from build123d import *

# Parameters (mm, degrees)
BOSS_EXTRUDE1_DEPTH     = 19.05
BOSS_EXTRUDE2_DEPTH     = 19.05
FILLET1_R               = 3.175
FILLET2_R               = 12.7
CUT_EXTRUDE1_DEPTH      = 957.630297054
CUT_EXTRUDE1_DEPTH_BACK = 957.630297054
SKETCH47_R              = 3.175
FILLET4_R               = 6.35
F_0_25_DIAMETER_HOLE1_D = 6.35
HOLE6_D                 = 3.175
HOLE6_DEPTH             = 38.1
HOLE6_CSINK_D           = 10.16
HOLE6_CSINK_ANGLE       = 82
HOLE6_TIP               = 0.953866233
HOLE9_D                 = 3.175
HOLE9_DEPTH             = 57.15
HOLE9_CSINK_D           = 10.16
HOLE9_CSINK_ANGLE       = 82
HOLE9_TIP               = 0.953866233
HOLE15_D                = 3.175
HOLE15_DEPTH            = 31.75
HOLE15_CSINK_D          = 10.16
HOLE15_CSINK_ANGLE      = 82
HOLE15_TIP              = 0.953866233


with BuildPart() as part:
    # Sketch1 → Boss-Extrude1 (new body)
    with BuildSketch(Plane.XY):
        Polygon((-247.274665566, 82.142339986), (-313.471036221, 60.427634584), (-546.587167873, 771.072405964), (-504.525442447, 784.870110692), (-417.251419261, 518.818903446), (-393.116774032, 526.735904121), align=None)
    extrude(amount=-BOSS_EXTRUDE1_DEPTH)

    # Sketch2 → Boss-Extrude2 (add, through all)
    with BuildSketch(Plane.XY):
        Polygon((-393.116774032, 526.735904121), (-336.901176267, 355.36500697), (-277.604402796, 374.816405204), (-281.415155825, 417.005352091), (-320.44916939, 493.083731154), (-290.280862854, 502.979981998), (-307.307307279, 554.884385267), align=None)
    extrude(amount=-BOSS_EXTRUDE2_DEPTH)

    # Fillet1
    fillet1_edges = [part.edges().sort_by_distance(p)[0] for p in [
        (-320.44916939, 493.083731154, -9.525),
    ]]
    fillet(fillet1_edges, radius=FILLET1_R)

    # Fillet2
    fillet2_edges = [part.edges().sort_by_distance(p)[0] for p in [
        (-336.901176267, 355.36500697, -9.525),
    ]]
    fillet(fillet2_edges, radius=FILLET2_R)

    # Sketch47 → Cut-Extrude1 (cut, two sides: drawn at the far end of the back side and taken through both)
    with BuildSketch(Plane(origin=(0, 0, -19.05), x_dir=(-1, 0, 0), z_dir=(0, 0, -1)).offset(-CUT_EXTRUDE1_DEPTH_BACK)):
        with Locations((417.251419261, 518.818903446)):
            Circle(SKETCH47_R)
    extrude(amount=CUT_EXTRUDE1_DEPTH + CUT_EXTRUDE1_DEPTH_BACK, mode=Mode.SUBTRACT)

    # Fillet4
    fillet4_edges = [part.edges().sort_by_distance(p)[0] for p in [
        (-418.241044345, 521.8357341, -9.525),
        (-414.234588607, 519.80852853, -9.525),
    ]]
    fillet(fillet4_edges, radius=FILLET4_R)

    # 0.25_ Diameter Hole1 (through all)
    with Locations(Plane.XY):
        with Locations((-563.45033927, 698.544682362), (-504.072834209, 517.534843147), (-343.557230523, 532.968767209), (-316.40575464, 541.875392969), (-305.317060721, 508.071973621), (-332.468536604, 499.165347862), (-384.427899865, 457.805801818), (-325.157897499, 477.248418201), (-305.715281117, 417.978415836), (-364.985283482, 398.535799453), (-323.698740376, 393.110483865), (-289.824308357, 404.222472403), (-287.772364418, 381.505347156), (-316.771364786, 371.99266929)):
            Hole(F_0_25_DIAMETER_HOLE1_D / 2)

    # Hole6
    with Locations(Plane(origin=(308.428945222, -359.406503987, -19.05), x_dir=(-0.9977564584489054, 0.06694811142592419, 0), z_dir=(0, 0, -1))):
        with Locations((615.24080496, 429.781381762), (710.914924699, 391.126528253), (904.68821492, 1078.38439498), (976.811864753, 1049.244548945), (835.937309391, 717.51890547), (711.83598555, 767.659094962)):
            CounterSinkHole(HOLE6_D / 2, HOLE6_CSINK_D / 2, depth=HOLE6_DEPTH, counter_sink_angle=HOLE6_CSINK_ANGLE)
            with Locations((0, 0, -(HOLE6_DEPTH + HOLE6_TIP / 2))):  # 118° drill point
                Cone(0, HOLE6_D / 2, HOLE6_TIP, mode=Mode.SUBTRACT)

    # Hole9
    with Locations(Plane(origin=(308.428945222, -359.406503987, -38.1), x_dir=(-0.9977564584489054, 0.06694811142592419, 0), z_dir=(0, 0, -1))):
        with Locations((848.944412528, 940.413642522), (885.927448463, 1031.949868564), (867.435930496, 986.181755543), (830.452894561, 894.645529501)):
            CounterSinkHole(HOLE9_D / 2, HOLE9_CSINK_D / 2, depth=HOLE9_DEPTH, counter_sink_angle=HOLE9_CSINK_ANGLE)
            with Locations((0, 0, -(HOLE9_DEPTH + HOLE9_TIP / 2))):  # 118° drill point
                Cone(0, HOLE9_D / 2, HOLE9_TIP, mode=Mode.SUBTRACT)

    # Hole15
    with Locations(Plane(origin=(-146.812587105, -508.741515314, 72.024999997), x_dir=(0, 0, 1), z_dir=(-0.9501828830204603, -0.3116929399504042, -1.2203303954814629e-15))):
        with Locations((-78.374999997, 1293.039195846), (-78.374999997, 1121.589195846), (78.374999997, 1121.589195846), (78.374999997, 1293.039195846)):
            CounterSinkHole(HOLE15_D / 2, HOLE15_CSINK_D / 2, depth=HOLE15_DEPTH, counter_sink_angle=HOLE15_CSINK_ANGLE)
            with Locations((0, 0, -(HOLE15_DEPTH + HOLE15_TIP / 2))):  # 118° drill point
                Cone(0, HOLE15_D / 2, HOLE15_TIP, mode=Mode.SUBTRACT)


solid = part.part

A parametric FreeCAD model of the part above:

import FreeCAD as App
import Part
import Sketcher
from FreeCAD import Vector
Q = App.Units.Quantity


def edges_at(feature, points):
    """Names of the edges that pass closest to the given points."""
    edges = feature.Shape.Edges
    near = lambda p: min(range(len(edges)), key=lambda i: edges[i].distToShape(Part.Vertex(*p))[0])
    return sorted({f"Edge{near(p) + 1}" for p in points})

doc = App.newDocument("Part")
body = doc.addObject("PartDesign::Body", "Body")

sketch1 = body.newObject("Sketcher::SketchObject", "Sketch")
sketch1.AttachmentSupport = (doc.getObject("XY_Plane"), [""])
sketch1.MapMode = "FlatFace"
sketch1.addGeometry([
    Part.LineSegment(Vector(-313.471036, 60.427635, 0), Vector(-247.274666, 82.14234, 0)),
    Part.LineSegment(Vector(-247.274666, 82.14234, 0), Vector(-393.116774, 526.735904, 0)),
    Part.LineSegment(Vector(-393.116774, 526.735904, 0), Vector(-417.251419, 518.818903, 0)),
    Part.LineSegment(Vector(-417.251419, 518.818903, 0), Vector(-504.525442, 784.870111, 0)),
    Part.LineSegment(Vector(-504.525442, 784.870111, 0), Vector(-546.587168, 771.072406, 0)),
    Part.LineSegment(Vector(-546.587168, 771.072406, 0), Vector(-313.471036, 60.427635, 0)),
], False)
sketch1.addConstraint([
    Sketcher.Constraint("Coincident", 0, 2, 1, 1),
    Sketcher.Constraint("Coincident", 1, 2, 2, 1),
    Sketcher.Constraint("Coincident", 2, 2, 3, 1),
    Sketcher.Constraint("Coincident", 3, 2, 4, 1),
    Sketcher.Constraint("Coincident", 4, 2, 5, 1),
    Sketcher.Constraint("Coincident", 5, 2, 0, 1),
    Sketcher.Constraint("Perpendicular", 0, 1),
    Sketcher.Constraint("Perpendicular", 1, 2),
    Sketcher.Constraint("Perpendicular", 2, 3),
    Sketcher.Constraint("Perpendicular", 3, 4),
    Sketcher.Constraint("Perpendicular", 4, 5),
    Sketcher.Constraint("Distance", 2, Q("1 in")),
    Sketcher.Constraint("Distance", 3, 280.0),
    Sketcher.Constraint("DistanceY", 2, 2, 1, 2, 7.917001),
    Sketcher.Constraint("DistanceY", 1, 2, 4, 2, 244.336502),
    Sketcher.Constraint("Distance", 1, 467.90315),
    Sketcher.Constraint("DistanceY", -1, 1, 0, 2, 82.14234),
    Sketcher.Constraint("DistanceX", 2, 2, -1, 1, 417.251419),
])
pad1 = body.newObject("PartDesign::Pad", "Pad")
pad1.Profile = sketch1
pad1.Length = Q("0.75 in")
pad1.Reversed = True

sketch2 = body.newObject("Sketcher::SketchObject", "Sketch001")
sketch2.AttachmentSupport = (doc.getObject("XY_Plane"), [""])
sketch2.MapMode = "FlatFace"
sketch2.addGeometry([
    Part.LineSegment(Vector(-393.116774, 526.735904, 0), Vector(-336.901176, 355.365007, 0)),
    Part.LineSegment(Vector(-336.901176, 355.365007, 0), Vector(-277.604403, 374.816405, 0)),
    Part.LineSegment(Vector(-277.604403, 374.816405, 0), Vector(-281.415156, 417.005352, 0)),
    Part.LineSegment(Vector(-281.415156, 417.005352, 0), Vector(-320.449169, 493.083731, 0)),
    Part.LineSegment(Vector(-320.449169, 493.083731, 0), Vector(-290.280863, 502.979982, 0)),
    Part.LineSegment(Vector(-290.280863, 502.979982, 0), Vector(-307.307307, 554.884385, 0)),
    Part.LineSegment(Vector(-307.307307, 554.884385, 0), Vector(-393.116774, 526.735904, 0)),
], False)
sketch2.addConstraint([
    Sketcher.Constraint("Coincident", 0, 2, 1, 1),
    Sketcher.Constraint("Coincident", 1, 2, 2, 1),
    Sketcher.Constraint("Coincident", 2, 2, 3, 1),
    Sketcher.Constraint("Coincident", 3, 2, 4, 1),
    Sketcher.Constraint("Coincident", 4, 2, 5, 1),
    Sketcher.Constraint("Coincident", 5, 2, 6, 1),
    Sketcher.Constraint("Coincident", 6, 2, 0, 1),
    Sketcher.Constraint("Perpendicular", 0, 1),
    Sketcher.Constraint("Parallel", 1, 4),
    Sketcher.Constraint("Perpendicular", 4, 5),
    Sketcher.Constraint("Perpendicular", 5, 6),
    Sketcher.Constraint("Distance", 4, Q("1.25 in")),
    Sketcher.Constraint("Distance", 0, 180.355698),
    Sketcher.Constraint("Distance", 5, 54.625698),
    Sketcher.Constraint("DistanceY", 0, 2, 1, 2, 19.451398),
    Sketcher.Constraint("Distance", 6, 90.308369),
    Sketcher.Constraint("DistanceX", 3, 2, -1, 1, 320.449169),
    Sketcher.Constraint("DistanceY", -1, 1, 3, 2, 493.083731),
    Sketcher.Constraint("DistanceY", -1, 1, 4, 2, 502.979982),
    Sketcher.Constraint("DistanceX", 0, 2, 2, 2, 55.48602),
    Sketcher.Constraint("DistanceY", 2, 2, 3, 2, 76.078379),
])
pad2 = body.newObject("PartDesign::Pad", "Pad001")
pad2.Profile = sketch2
pad2.Length = Q("0.75 in")
pad2.Reversed = True
doc.recompute()

fillet = body.newObject("PartDesign::Fillet", "Fillet")
fillet.Base = (pad2, edges_at(pad2, [(-320.449, 493.084, -9.525)]))
fillet.Radius = Q("0.125 in")
doc.recompute()

fillet2 = body.newObject("PartDesign::Fillet", "Fillet001")
fillet2.Base = (fillet, edges_at(fillet, [(-336.901, 355.365, -9.525)]))
fillet2.Radius = Q("0.5 in")

sketch3 = body.newObject("Sketcher::SketchObject", "Sketch002")
sketch3.AttachmentSupport = (doc.getObject("XY_Plane"), [""])
sketch3.MapMode = "FlatFace"
sketch3.AttachmentOffset = App.Placement(Vector(0, 0, -0.75 * 25.4), App.Rotation())
sketch3.addGeometry(Part.Circle(Vector(-417.251419, 518.818903, 0), Vector(0, 0, 1), 3.175), False)
sketch3.addConstraint([
    Sketcher.Constraint("Diameter", 0, Q("0.25 in")),
    Sketcher.Constraint("DistanceX", 0, 3, -1, 1, 417.251419),
    Sketcher.Constraint("DistanceY", -1, 1, 0, 3, 518.818903),
])
pocket1 = body.newObject("PartDesign::Pocket", "Pocket")
pocket1.Profile = sketch3
pocket1.Type = "ThroughAll"
pocket1.Midplane = True
doc.recompute()

fillet3 = body.newObject("PartDesign::Fillet", "Fillet002")
fillet3.Base = (pocket1, edges_at(pocket1, [(-418.241, 521.836, -9.525), (-414.235, 519.809, -9.525)]))
fillet3.Radius = Q("0.25 in")

sketch4 = body.newObject("Sketcher::SketchObject", "Sketch003")
sketch4.AttachmentSupport = (doc.getObject("XY_Plane"), [""])
sketch4.MapMode = "FlatFace"
sketch4.addGeometry([
    Part.Circle(Vector(-563.450339, 698.544682, 0), Vector(0, 0, 1), 3.175),
    Part.Circle(Vector(-504.072834, 517.534843, 0), Vector(0, 0, 1), 3.175),
    Part.Circle(Vector(-343.557231, 532.968767, 0), Vector(0, 0, 1), 3.175),
    Part.Circle(Vector(-316.405755, 541.875393, 0), Vector(0, 0, 1), 3.175),
    Part.Circle(Vector(-305.317061, 508.071974, 0), Vector(0, 0, 1), 3.175),
    Part.Circle(Vector(-332.468537, 499.165348, 0), Vector(0, 0, 1), 3.175),
    Part.Circle(Vector(-384.4279, 457.805802, 0), Vector(0, 0, 1), 3.175),
    Part.Circle(Vector(-325.157897, 477.248418, 0), Vector(0, 0, 1), 3.175),
    Part.Circle(Vector(-305.715281, 417.978416, 0), Vector(0, 0, 1), 3.175),
    Part.Circle(Vector(-364.985283, 398.535799, 0), Vector(0, 0, 1), 3.175),
    Part.Circle(Vector(-323.69874, 393.110484, 0), Vector(0, 0, 1), 3.175),
    Part.Circle(Vector(-289.824308, 404.222472, 0), Vector(0, 0, 1), 3.175),
    Part.Circle(Vector(-287.772364, 381.505347, 0), Vector(0, 0, 1), 3.175),
    Part.Circle(Vector(-316.771365, 371.992669, 0), Vector(0, 0, 1), 3.175),
], False)
sketch4.addConstraint([
    Sketcher.Constraint("Equal", 0, 1),
    Sketcher.Constraint("Equal", 1, 2),
    Sketcher.Constraint("Equal", 2, 3),
    Sketcher.Constraint("Equal", 3, 4),
    Sketcher.Constraint("Equal", 4, 5),
    Sketcher.Constraint("Equal", 5, 6),
    Sketcher.Constraint("Equal", 6, 7),
    Sketcher.Constraint("Equal", 7, 8),
    Sketcher.Constraint("Equal", 8, 9),
    Sketcher.Constraint("Equal", 9, 10),
    Sketcher.Constraint("Equal", 10, 11),
    Sketcher.Constraint("Equal", 11, 12),
    Sketcher.Constraint("Equal", 12, 13),
    Sketcher.Constraint("Diameter", 0, Q("0.25 in")),
    Sketcher.Constraint("DistanceX", 6, 3, 4, 3, Q("3.1146 in")),
    Sketcher.Constraint("DistanceX", 6, 3, -1, 1, 384.4279),
    Sketcher.Constraint("DistanceY", -1, 1, 6, 3, 457.805802),
    Sketcher.Constraint("DistanceY", -1, 1, 9, 3, 398.535799),
    Sketcher.Constraint("DistanceX", 13, 3, 12, 3, 28.999),
    Sketcher.Constraint("DistanceX", 0, 3, -1, 1, 563.450339),
    Sketcher.Constraint("DistanceX", 2, 3, -1, 1, 343.557231),
    Sketcher.Constraint("DistanceY", -1, 1, 7, 3, 477.248418),
    Sketcher.Constraint("DistanceX", 8, 3, -1, 1, 305.715281),
    Sketcher.Constraint("DistanceX", 10, 3, -1, 1, 323.69874),
    Sketcher.Constraint("DistanceX", 11, 3, -1, 1, 289.824308),
    Sketcher.Constraint("DistanceY", -1, 1, 13, 3, 371.992669),
    Sketcher.Constraint("DistanceY", 1, 3, 0, 3, 181.009839),
    Sketcher.Constraint("DistanceX", 1, 3, 3, 3, 187.66708),
    Sketcher.Constraint("DistanceY", 1, 3, 3, 3, 24.34055),
    Sketcher.Constraint("DistanceY", 4, 3, 3, 3, 33.803419),
    Sketcher.Constraint("DistanceY", 5, 3, 2, 3, 33.803419),
    Sketcher.Constraint("DistanceX", 5, 3, 3, 3, 16.062782),
    Sketcher.Constraint("DistanceY", 6, 3, 4, 3, 50.266172),
    Sketcher.Constraint("DistanceX", 5, 3, 7, 3, 7.310639),
    Sketcher.Constraint("DistanceY", 7, 3, 5, 3, 21.91693),
    Sketcher.Constraint("DistanceY", 8, 3, 2, 3, 114.990351),
    Sketcher.Constraint("DistanceY", 10, 3, 8, 3, 24.867932),
    Sketcher.Constraint("DistanceY", 10, 3, 11, 3, 11.111989),
    Sketcher.Constraint("DistanceX", 7, 3, 11, 3, 35.333589),
    Sketcher.Constraint("DistanceY", 12, 3, 8, 3, 36.473069),
    Sketcher.Constraint("DistanceX", 9, 3, 12, 3, 77.212919),
    Sketcher.Constraint("DistanceX", 9, 3, -1, 1, 364.985283),
])
doc.recompute()
hole = body.newObject("PartDesign::Hole", "Hole")
hole.Profile = sketch4
hole.ThreadType = "None"
hole.Diameter = Q("0.25 in")
hole.DepthType = "ThroughAll"

sketch5 = body.newObject("Sketcher::SketchObject", "Sketch004")
sketch5.AttachmentSupport = (doc.getObject("XY_Plane"), [""])
sketch5.MapMode = "FlatFace"
sketch5.AttachmentOffset = App.Placement(Vector(0, 0, -0.75 * 25.4), App.Rotation())
sketch5.addGeometry([
    Part.Circle(Vector(-276.65849, 110.599855, 0), Vector(0, 0, 1), 1.5875),
    Part.Circle(Vector(-374.70583, 78.436927, 0), Vector(0, 0, 1), 1.5875),
    Part.Circle(Vector(-522.033766, 777.125658, 0), Vector(0, 0, 1), 1.5875),
    Part.Circle(Vector(-595.946461, 752.87973, 0), Vector(0, 0, 1), 1.5875),
    Part.Circle(Vector(-477.596368, 412.467042, 0), Vector(0, 0, 1), 1.5875),
    Part.Circle(Vector(-350.41668, 454.18639, 0), Vector(0, 0, 1), 1.5875),
], False)
sketch5.addConstraint([
    Sketcher.Constraint("Equal", 0, 1),
    Sketcher.Constraint("Equal", 1, 2),
    Sketcher.Constraint("Equal", 2, 3),
    Sketcher.Constraint("Equal", 3, 4),
    Sketcher.Constraint("Equal", 4, 5),
    Sketcher.Constraint("Diameter", 0, Q("0.125 in")),
    Sketcher.Constraint("DistanceX", 0, 3, -1, 1, 276.65849),
    Sketcher.Constraint("DistanceX", 1, 3, -1, 1, 374.70583),
    Sketcher.Constraint("DistanceX", 3, 3, -1, 1, 595.946461),
    Sketcher.Constraint("DistanceY", -1, 1, 3, 3, 752.87973),
    Sketcher.Constraint("DistanceX", 4, 3, -1, 1, 477.596368),
    Sketcher.Constraint("DistanceY", -1, 1, 4, 3, 412.467042),
    Sketcher.Constraint("DistanceX", 5, 3, -1, 1, 350.41668),
    Sketcher.Constraint("DistanceY", -1, 1, 5, 3, 454.18639),
    Sketcher.Constraint("DistanceY", 1, 3, 0, 3, 32.162928),
    Sketcher.Constraint("DistanceY", 1, 3, 2, 3, 698.688731),
    Sketcher.Constraint("DistanceY", -1, 1, 0, 3, 110.599855),
    Sketcher.Constraint("DistanceX", 2, 3, -1, 1, 522.033766),
])
doc.recompute()
hole2 = body.newObject("PartDesign::Hole", "Hole001")
hole2.Profile = sketch5
hole2.ThreadType = "None"
hole2.Diameter = Q("0.125 in")
hole2.DepthType = "Dimension"
hole2.Depth = Q("1.5 in")
hole2.DrillPoint = "Angled"
hole2.DrillPointAngle = 118
hole2.HoleCutType = "Countersink"
hole2.HoleCutDiameter = Q("0.4 in")
hole2.HoleCutCountersinkAngle = 82
hole2.Reversed = True

sketch6 = body.newObject("Sketcher::SketchObject", "Sketch005")
sketch6.AttachmentSupport = (doc.getObject("XY_Plane"), [""])
sketch6.MapMode = "FlatFace"
sketch6.AttachmentOffset = App.Placement(Vector(0, 0, -1.5 * 25.4), App.Rotation())
sketch6.addGeometry([
    Part.Circle(Vector(-475.651908, 635.732506, 0), Vector(0, 0, 1), 1.5875),
    Part.Circle(Vector(-506.423793, 729.539311, 0), Vector(0, 0, 1), 1.5875),
    Part.Circle(Vector(-491.037851, 682.635909, 0), Vector(0, 0, 1), 1.5875),
    Part.Circle(Vector(-460.265965, 588.829104, 0), Vector(0, 0, 1), 1.5875),
], False)
sketch6.addConstraint([
    Sketcher.Constraint("Equal", 0, 1),
    Sketcher.Constraint("Equal", 1, 2),
    Sketcher.Constraint("Equal", 2, 3),
    Sketcher.Constraint("Diameter", 0, Q("0.125 in")),
    Sketcher.Constraint("DistanceY", -1, 1, 1, 3, 729.539311),
    Sketcher.Constraint("DistanceX", 2, 3, -1, 1, 491.037851),
    Sketcher.Constraint("DistanceY", -1, 1, 2, 3, 682.635909),
    Sketcher.Constraint("DistanceX", 1, 3, 3, 3, 46.157828),
    Sketcher.Constraint("DistanceX", 0, 3, -1, 1, 475.651908),
    Sketcher.Constraint("DistanceY", -1, 1, 0, 3, 635.732506),
    Sketcher.Constraint("DistanceX", 1, 3, -1, 1, 506.423793),
    Sketcher.Constraint("DistanceY", -1, 1, 3, 3, 588.829104),
])
doc.recompute()
hole3 = body.newObject("PartDesign::Hole", "Hole002")
hole3.Profile = sketch6
hole3.ThreadType = "None"
hole3.Diameter = Q("0.125 in")
hole3.DepthType = "Dimension"
hole3.Depth = Q("2.25 in")
hole3.DrillPoint = "Angled"
hole3.DrillPointAngle = 118
hole3.HoleCutType = "Countersink"
hole3.HoleCutDiameter = Q("0.4 in")
hole3.HoleCutCountersinkAngle = 82
hole3.Reversed = True

sketch7 = body.newObject("Sketcher::SketchObject", "Sketch006")
sketch7.Placement = App.Placement(Vector(-283.220961, -92.906298, 0), App.Rotation(Vector(0, 0, 1), Vector(-0.31169294, 0.950182883, 0), Vector(-0.950182883, -0.31169294, 0), "ZXY"))
sketch7.addGeometry([
    Part.Circle(Vector(-6.35, 855.402163, 0), Vector(0, 0, 1), 1.5875),
    Part.Circle(Vector(-6.35, 683.952163, 0), Vector(0, 0, 1), 1.5875),
    Part.Circle(Vector(150.4, 683.952163, 0), Vector(0, 0, 1), 1.5875),
    Part.Circle(Vector(150.4, 855.402163, 0), Vector(0, 0, 1), 1.5875),
], False)
sketch7.addConstraint([
    Sketcher.Constraint("Equal", 0, 1),
    Sketcher.Constraint("Equal", 1, 2),
    Sketcher.Constraint("Equal", 2, 3),
    Sketcher.Constraint("Horizontal", 1, 3, 2, 3),
    Sketcher.Constraint("Horizontal", 0, 3, 3, 3),
    Sketcher.Constraint("Vertical", 0, 3, 1, 3),
    Sketcher.Constraint("Vertical", 2, 3, 3, 3),
    Sketcher.Constraint("Diameter", 0, Q("0.125 in")),
    Sketcher.Constraint("DistanceX", 0, 3, -1, 1, Q("0.25 in")),
    Sketcher.Constraint("DistanceY", 1, 3, 0, 3, Q("6.75 in")),
    Sketcher.Constraint("DistanceX", -1, 1, 2, 3, 150.4),
    Sketcher.Constraint("DistanceY", -1, 1, 0, 3, 855.402163),
])
doc.recompute()
hole4 = body.newObject("PartDesign::Hole", "Hole003")
hole4.Profile = sketch7
hole4.ThreadType = "None"
hole4.Diameter = Q("0.125 in")
hole4.DepthType = "Dimension"
hole4.Depth = Q("1.25 in")
hole4.DrillPoint = "Angled"
hole4.DrillPointAngle = 118
hole4.HoleCutType = "Countersink"
hole4.HoleCutDiameter = Q("0.4 in")
hole4.HoleCutCountersinkAngle = 82

doc.recompute()
